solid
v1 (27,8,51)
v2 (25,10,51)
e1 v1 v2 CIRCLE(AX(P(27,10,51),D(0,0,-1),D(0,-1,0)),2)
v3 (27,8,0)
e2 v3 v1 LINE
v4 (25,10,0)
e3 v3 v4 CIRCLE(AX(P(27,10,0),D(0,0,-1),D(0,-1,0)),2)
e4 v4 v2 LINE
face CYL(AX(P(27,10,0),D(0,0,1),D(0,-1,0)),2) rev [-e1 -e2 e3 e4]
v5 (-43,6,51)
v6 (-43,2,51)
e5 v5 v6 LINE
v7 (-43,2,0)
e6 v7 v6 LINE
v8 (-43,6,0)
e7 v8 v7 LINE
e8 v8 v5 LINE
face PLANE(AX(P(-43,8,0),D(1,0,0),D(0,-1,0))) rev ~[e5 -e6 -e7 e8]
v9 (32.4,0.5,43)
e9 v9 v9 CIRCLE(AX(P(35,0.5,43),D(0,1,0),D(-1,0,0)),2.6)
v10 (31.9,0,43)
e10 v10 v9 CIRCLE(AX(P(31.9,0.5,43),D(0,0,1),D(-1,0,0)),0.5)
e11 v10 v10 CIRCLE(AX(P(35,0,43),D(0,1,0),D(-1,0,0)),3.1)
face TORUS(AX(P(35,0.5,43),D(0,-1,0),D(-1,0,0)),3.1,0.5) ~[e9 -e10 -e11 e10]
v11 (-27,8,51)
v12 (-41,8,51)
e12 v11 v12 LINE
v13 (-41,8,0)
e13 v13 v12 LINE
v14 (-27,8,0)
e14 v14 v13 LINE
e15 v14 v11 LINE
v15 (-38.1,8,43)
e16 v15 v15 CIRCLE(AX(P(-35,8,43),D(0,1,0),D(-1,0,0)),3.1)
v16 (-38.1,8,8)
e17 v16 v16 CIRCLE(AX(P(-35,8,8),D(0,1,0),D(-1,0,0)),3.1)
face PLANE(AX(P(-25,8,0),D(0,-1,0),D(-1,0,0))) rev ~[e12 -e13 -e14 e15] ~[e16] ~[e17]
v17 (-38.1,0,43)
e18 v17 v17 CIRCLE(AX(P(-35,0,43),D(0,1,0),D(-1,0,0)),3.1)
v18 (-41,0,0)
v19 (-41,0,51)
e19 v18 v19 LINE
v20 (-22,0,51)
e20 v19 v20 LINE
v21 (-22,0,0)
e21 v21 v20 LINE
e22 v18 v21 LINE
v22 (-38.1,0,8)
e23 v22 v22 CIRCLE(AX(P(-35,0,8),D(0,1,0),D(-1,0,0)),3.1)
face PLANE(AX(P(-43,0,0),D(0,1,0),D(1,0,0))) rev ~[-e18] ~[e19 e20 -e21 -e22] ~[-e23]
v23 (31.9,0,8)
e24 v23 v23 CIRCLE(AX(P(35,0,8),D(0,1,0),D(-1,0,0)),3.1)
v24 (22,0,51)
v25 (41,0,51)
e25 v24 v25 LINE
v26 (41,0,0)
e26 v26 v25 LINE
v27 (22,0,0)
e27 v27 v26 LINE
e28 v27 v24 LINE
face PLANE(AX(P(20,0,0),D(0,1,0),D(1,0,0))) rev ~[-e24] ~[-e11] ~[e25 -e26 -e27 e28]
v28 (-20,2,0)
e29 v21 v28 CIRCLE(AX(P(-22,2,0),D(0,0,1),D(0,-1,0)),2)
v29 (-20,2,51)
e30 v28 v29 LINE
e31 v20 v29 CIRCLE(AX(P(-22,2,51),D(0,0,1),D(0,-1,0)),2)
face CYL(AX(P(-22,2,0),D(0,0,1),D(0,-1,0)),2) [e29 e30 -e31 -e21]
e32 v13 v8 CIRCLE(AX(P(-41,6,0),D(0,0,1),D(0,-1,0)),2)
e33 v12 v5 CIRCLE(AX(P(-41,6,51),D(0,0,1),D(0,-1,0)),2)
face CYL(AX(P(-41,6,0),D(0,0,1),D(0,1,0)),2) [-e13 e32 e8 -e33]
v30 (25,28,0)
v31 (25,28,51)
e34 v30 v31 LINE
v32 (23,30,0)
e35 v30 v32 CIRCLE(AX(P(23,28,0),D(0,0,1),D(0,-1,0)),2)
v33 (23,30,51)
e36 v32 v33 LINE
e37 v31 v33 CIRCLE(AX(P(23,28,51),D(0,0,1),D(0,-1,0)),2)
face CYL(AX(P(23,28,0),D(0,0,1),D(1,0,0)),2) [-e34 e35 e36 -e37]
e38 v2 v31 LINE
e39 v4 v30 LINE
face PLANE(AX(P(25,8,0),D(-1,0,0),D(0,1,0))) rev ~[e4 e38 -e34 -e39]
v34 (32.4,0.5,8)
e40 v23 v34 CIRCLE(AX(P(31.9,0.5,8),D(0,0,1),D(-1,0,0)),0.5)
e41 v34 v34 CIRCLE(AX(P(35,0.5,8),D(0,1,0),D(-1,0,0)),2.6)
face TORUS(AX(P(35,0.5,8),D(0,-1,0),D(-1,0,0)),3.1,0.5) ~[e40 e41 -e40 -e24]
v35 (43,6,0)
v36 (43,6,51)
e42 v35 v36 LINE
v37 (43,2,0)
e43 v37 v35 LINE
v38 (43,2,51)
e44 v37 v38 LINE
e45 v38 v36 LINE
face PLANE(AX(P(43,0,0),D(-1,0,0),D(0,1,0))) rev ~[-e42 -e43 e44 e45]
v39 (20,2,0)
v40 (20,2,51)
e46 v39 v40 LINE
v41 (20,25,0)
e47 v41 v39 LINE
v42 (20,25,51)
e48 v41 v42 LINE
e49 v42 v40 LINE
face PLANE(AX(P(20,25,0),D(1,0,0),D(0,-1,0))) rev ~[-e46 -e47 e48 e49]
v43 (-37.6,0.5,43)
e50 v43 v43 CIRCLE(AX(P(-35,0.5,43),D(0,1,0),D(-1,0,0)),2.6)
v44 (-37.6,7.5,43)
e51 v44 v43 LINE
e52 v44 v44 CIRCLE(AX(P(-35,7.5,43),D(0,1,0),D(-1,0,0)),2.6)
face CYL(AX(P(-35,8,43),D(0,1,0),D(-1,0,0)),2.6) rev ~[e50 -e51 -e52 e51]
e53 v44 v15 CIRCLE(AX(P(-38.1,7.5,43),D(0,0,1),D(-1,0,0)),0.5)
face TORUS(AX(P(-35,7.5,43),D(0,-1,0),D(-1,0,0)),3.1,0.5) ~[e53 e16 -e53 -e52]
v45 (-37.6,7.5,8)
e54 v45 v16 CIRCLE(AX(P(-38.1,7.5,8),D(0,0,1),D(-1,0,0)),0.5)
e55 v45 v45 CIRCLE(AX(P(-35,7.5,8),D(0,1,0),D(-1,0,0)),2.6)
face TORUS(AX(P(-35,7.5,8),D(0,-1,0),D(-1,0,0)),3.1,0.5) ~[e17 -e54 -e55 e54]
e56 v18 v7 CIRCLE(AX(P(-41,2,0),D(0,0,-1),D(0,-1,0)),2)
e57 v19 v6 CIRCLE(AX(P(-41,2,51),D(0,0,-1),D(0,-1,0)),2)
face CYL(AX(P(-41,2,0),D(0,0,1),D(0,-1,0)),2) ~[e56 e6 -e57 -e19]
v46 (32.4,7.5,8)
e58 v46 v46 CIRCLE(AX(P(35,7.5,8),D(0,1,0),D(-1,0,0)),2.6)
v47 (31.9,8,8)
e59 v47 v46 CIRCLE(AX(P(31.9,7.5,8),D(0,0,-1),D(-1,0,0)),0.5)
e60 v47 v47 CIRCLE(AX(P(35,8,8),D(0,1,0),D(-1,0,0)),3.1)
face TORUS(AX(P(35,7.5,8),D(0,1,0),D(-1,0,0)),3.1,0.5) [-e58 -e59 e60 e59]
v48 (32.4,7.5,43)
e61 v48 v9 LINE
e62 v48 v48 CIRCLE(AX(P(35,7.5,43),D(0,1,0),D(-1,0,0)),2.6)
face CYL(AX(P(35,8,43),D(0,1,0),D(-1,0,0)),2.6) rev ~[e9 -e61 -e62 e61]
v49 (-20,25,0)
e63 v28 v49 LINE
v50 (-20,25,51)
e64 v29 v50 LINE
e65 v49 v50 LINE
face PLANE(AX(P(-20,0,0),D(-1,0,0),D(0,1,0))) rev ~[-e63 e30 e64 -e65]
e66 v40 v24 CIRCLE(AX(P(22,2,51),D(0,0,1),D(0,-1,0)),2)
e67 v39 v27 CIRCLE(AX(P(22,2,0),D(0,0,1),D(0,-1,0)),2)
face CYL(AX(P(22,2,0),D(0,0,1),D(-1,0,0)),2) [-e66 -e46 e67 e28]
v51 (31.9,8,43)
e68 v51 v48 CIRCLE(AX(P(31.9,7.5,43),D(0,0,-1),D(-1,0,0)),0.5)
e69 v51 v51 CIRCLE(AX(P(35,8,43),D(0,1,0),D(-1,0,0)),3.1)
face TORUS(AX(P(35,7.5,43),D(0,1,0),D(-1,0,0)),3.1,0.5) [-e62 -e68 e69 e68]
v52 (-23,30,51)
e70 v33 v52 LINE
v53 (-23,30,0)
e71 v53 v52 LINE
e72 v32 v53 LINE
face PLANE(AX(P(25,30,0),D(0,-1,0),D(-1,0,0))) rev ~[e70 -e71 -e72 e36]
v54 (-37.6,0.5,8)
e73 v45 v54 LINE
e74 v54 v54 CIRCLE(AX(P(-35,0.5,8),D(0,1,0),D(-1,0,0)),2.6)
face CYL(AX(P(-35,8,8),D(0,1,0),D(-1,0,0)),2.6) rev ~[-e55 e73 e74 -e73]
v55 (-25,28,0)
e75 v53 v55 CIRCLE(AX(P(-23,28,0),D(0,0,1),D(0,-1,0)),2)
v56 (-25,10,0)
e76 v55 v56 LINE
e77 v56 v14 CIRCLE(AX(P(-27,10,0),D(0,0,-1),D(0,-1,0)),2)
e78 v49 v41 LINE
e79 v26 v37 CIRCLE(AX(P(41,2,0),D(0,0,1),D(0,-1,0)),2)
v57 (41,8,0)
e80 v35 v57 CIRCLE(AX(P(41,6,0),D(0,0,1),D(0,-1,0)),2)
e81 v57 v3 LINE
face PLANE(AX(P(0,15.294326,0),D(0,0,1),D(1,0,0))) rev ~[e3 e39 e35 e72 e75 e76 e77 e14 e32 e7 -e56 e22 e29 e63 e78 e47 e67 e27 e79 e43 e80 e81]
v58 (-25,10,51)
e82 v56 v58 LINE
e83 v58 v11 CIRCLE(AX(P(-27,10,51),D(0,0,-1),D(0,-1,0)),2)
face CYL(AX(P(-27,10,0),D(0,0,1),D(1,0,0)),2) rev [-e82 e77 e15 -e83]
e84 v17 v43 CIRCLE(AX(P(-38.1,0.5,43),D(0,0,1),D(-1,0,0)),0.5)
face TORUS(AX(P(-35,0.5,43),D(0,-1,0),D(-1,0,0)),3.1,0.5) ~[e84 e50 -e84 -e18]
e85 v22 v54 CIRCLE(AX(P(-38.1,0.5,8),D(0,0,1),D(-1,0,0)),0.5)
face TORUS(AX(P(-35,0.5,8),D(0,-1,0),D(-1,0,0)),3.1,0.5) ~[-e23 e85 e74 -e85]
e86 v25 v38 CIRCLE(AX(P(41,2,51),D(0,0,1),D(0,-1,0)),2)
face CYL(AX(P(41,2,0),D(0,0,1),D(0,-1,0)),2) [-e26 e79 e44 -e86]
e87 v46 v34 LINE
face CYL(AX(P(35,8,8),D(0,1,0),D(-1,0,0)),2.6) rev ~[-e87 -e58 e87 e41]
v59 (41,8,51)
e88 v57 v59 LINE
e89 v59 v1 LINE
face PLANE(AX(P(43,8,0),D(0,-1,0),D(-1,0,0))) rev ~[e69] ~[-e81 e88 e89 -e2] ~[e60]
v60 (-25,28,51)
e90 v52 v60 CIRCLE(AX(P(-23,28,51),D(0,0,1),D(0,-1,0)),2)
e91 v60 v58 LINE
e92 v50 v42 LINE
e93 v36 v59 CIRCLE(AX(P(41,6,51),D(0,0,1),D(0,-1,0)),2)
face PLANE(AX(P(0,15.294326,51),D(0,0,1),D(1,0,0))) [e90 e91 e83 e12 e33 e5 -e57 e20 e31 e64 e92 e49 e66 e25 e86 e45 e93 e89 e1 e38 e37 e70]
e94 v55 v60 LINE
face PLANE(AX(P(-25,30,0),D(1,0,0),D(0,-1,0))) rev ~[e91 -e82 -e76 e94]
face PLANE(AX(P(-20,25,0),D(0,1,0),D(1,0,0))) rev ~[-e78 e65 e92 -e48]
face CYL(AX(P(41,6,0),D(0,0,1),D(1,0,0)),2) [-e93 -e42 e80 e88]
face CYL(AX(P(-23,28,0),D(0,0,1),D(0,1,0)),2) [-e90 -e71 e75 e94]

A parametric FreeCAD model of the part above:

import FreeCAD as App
import Part
import Sketcher


def edges_at(feature, points):
    """Names of the edges that pass closest to the given points."""
    edges = feature.Shape.Edges
    near = lambda p: min(range(len(edges)), key=lambda i: edges[i].distToShape(Part.Vertex(*p))[0])
    return sorted({f"Edge{near(p) + 1}" for p in points})


def add_polygon(sketch, points):
    """Adds a closed chain of lines whose ends are joined by coincident constraints."""
    first, n = sketch.GeometryCount, len(points)
    for a, b in zip(points, points[1:] + points[:1]):
        sketch.addGeometry(Part.LineSegment(App.Vector(*a, 0), App.Vector(*b, 0)), False)
    for i in range(n):
        sketch.addConstraint(Sketcher.Constraint("Coincident", first + i, 2, first + (i + 1) % n, 1))

doc = App.newDocument("Part")
body = doc.addObject("PartDesign::Body", "Body")

# Sketch on XY plane
sketch1 = body.newObject("Sketcher::SketchObject", "Sketch")
sketch1.AttachmentSupport = (doc.getObject("XY_Plane"), [""])
sketch1.MapMode = "FlatFace"
add_polygon(sketch1, [(-43, 0), (-20, 0), (-20, 25), (20, 25), (20, 0), (43, 0), (43, 8), (25, 8), (25, 30), (-25, 30), (-25, 8), (-43, 8)])  # lines 0-11
sketch1.addConstraint([
    Sketcher.Constraint("Horizontal", 0),
    Sketcher.Constraint("Vertical", 1),
    Sketcher.Constraint("Horizontal", 2),
    Sketcher.Constraint("Vertical", 3),
    Sketcher.Constraint("Horizontal", 4),
    Sketcher.Constraint("Vertical", 5),
    Sketcher.Constraint("Horizontal", 6),
    Sketcher.Constraint("Vertical", 7),
    Sketcher.Constraint("Horizontal", 8),
    Sketcher.Constraint("Vertical", 9),
    Sketcher.Constraint("Horizontal", 10),
    Sketcher.Constraint("Vertical", 11),
    Sketcher.Constraint("Symmetric", 0, 2, 3, 2, -1, 1),
    Sketcher.Constraint("Symmetric", 6, 2, 9, 2, -2),
    Sketcher.Constraint("Symmetric", 4, 2, 11, 2, -2),
    Sketcher.Constraint("DistanceX", 0, 1, 0, 2, 23.0),
    Sketcher.Constraint("DistanceX", 2, 1, 2, 2, 40.0),
    Sketcher.Constraint("DistanceX", 6, 2, 6, 1, 18.0),
    Sketcher.Constraint("DistanceY", 1, 1, 1, 2, 25.0),
    Sketcher.Constraint("DistanceY", 5, 1, 5, 2, 8.0),
    Sketcher.Constraint("DistanceY", 7, 1, 7, 2, 22.0),
])
pad1 = body.newObject("PartDesign::Pad", "Pad")
pad1.Profile = sketch1
pad1.Length = 51
doc.recompute()

fillet = body.newObject("PartDesign::Fillet", "Fillet")
fillet.Base = (pad1, edges_at(pad1, [
    (-25, 8, 25.5),
    (25, 8, 25.5),
    (43, 8, 25.5),
    (43, 0, 25.5),
    (-43, 8, 25.5),
    (-43, 0, 25.5),
    (-20, 0, 25.5),
    (20, 0, 25.5),
    (-25, 30, 25.5),
    (25, 30, 25.5),
]))
fillet.Radius = 2

# Sketch on XZ plane
sketch2 = body.newObject("Sketcher::SketchObject", "Sketch001")
sketch2.AttachmentSupport = (doc.getObject("XZ_Plane"), [""])
sketch2.MapMode = "FlatFace"
sketch2.AttachmentOffset = App.Placement(App.Vector(0, 0, -8), App.Rotation())
sketch2.addGeometry([
    Part.Circle(App.Vector(-35, 8, 0), App.Vector(0, 0, 1), 2.6),
    Part.Circle(App.Vector(-35, 43, 0), App.Vector(0, 0, 1), 2.6),
    Part.Circle(App.Vector(35, 8, 0), App.Vector(0, 0, 1), 2.6),
    Part.Circle(App.Vector(35, 43, 0), App.Vector(0, 0, 1), 2.6),
], False)
sketch2.addConstraint([
    Sketcher.Constraint("Equal", 0, 1),
    Sketcher.Constraint("Equal", 1, 2),
    Sketcher.Constraint("Equal", 2, 3),
    Sketcher.Constraint("Symmetric", 0, 3, 2, 3, -2),
    Sketcher.Constraint("Symmetric", 1, 3, 3, 3, -2),
    Sketcher.Constraint("Vertical", 0, 3, 1, 3),
    Sketcher.Constraint("Diameter", 0, 5.2),
    Sketcher.Constraint("DistanceX", 0, 3, -1, 1, 35.0),
    Sketcher.Constraint("DistanceY", -1, 1, 0, 3, 8.0),
    Sketcher.Constraint("DistanceY", -1, 1, 1, 3, 43.0),
])
pocket1 = body.newObject("PartDesign::Pocket", "Pocket")
pocket1.Profile = sketch2
pocket1.Type = "ThroughAll"
pocket1.Reversed = True
doc.recompute()

fillet2 = body.newObject("PartDesign::Fillet", "Fillet001")
fillet2.Base = (pocket1, edges_at(pocket1, [
    (-37.6, 4, 43),
    (-32.4, 8, 43),
    (-32.4, 0, 43),
    (-37.6, 4, 8),
    (-32.4, 8, 8),
    (-32.4, 0, 8),
    (32.4, 4, 8),
    (37.6, 8, 8),
    (37.6, 0, 8),
    (32.4, 4, 43),
    (37.6, 8, 43),
    (37.6, 0, 43),
]))
fillet2.Radius = 0.5

doc.recompute()
